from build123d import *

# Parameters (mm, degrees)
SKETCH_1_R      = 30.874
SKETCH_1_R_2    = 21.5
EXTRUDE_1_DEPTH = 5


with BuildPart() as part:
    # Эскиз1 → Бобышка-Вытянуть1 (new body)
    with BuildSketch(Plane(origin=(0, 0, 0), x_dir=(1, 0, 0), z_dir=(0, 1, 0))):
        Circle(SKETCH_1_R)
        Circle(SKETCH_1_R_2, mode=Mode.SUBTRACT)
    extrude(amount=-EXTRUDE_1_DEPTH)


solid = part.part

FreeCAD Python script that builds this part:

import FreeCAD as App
import Part
import Sketcher
from FreeCAD import Vector

doc = App.newDocument("Part")
body = doc.addObject("PartDesign::Body", "Body")

# Sketch on XZ plane
sketch1 = body.newObject("Sketcher::SketchObject", "Sketch")
sketch1.AttachmentSupport = (doc.getObject("XZ_Plane"), [""])
sketch1.MapMode = "FlatFace"
sketch1.addGeometry([
    Part.Circle(Vector(0, 0, 0), Vector(0, 0, 1), 31),
    Part.Circle(Vector(0, 0, 0), Vector(0, 0, 1), 22),
], False)
sketch1.addConstraint([
    Sketcher.Constraint("Coincident", 0, 3, -1, 1),
    Sketcher.Constraint("Coincident", 1, 3, -1, 1),
    Sketcher.Constraint("Diameter", 1, 43.0),
    Sketcher.Constraint("Diameter", 0, 61.748),
])
pad1 = body.newObject("PartDesign::Pad", "Pad")
pad1.Profile = sketch1
pad1.Length = 5

doc.recompute()
